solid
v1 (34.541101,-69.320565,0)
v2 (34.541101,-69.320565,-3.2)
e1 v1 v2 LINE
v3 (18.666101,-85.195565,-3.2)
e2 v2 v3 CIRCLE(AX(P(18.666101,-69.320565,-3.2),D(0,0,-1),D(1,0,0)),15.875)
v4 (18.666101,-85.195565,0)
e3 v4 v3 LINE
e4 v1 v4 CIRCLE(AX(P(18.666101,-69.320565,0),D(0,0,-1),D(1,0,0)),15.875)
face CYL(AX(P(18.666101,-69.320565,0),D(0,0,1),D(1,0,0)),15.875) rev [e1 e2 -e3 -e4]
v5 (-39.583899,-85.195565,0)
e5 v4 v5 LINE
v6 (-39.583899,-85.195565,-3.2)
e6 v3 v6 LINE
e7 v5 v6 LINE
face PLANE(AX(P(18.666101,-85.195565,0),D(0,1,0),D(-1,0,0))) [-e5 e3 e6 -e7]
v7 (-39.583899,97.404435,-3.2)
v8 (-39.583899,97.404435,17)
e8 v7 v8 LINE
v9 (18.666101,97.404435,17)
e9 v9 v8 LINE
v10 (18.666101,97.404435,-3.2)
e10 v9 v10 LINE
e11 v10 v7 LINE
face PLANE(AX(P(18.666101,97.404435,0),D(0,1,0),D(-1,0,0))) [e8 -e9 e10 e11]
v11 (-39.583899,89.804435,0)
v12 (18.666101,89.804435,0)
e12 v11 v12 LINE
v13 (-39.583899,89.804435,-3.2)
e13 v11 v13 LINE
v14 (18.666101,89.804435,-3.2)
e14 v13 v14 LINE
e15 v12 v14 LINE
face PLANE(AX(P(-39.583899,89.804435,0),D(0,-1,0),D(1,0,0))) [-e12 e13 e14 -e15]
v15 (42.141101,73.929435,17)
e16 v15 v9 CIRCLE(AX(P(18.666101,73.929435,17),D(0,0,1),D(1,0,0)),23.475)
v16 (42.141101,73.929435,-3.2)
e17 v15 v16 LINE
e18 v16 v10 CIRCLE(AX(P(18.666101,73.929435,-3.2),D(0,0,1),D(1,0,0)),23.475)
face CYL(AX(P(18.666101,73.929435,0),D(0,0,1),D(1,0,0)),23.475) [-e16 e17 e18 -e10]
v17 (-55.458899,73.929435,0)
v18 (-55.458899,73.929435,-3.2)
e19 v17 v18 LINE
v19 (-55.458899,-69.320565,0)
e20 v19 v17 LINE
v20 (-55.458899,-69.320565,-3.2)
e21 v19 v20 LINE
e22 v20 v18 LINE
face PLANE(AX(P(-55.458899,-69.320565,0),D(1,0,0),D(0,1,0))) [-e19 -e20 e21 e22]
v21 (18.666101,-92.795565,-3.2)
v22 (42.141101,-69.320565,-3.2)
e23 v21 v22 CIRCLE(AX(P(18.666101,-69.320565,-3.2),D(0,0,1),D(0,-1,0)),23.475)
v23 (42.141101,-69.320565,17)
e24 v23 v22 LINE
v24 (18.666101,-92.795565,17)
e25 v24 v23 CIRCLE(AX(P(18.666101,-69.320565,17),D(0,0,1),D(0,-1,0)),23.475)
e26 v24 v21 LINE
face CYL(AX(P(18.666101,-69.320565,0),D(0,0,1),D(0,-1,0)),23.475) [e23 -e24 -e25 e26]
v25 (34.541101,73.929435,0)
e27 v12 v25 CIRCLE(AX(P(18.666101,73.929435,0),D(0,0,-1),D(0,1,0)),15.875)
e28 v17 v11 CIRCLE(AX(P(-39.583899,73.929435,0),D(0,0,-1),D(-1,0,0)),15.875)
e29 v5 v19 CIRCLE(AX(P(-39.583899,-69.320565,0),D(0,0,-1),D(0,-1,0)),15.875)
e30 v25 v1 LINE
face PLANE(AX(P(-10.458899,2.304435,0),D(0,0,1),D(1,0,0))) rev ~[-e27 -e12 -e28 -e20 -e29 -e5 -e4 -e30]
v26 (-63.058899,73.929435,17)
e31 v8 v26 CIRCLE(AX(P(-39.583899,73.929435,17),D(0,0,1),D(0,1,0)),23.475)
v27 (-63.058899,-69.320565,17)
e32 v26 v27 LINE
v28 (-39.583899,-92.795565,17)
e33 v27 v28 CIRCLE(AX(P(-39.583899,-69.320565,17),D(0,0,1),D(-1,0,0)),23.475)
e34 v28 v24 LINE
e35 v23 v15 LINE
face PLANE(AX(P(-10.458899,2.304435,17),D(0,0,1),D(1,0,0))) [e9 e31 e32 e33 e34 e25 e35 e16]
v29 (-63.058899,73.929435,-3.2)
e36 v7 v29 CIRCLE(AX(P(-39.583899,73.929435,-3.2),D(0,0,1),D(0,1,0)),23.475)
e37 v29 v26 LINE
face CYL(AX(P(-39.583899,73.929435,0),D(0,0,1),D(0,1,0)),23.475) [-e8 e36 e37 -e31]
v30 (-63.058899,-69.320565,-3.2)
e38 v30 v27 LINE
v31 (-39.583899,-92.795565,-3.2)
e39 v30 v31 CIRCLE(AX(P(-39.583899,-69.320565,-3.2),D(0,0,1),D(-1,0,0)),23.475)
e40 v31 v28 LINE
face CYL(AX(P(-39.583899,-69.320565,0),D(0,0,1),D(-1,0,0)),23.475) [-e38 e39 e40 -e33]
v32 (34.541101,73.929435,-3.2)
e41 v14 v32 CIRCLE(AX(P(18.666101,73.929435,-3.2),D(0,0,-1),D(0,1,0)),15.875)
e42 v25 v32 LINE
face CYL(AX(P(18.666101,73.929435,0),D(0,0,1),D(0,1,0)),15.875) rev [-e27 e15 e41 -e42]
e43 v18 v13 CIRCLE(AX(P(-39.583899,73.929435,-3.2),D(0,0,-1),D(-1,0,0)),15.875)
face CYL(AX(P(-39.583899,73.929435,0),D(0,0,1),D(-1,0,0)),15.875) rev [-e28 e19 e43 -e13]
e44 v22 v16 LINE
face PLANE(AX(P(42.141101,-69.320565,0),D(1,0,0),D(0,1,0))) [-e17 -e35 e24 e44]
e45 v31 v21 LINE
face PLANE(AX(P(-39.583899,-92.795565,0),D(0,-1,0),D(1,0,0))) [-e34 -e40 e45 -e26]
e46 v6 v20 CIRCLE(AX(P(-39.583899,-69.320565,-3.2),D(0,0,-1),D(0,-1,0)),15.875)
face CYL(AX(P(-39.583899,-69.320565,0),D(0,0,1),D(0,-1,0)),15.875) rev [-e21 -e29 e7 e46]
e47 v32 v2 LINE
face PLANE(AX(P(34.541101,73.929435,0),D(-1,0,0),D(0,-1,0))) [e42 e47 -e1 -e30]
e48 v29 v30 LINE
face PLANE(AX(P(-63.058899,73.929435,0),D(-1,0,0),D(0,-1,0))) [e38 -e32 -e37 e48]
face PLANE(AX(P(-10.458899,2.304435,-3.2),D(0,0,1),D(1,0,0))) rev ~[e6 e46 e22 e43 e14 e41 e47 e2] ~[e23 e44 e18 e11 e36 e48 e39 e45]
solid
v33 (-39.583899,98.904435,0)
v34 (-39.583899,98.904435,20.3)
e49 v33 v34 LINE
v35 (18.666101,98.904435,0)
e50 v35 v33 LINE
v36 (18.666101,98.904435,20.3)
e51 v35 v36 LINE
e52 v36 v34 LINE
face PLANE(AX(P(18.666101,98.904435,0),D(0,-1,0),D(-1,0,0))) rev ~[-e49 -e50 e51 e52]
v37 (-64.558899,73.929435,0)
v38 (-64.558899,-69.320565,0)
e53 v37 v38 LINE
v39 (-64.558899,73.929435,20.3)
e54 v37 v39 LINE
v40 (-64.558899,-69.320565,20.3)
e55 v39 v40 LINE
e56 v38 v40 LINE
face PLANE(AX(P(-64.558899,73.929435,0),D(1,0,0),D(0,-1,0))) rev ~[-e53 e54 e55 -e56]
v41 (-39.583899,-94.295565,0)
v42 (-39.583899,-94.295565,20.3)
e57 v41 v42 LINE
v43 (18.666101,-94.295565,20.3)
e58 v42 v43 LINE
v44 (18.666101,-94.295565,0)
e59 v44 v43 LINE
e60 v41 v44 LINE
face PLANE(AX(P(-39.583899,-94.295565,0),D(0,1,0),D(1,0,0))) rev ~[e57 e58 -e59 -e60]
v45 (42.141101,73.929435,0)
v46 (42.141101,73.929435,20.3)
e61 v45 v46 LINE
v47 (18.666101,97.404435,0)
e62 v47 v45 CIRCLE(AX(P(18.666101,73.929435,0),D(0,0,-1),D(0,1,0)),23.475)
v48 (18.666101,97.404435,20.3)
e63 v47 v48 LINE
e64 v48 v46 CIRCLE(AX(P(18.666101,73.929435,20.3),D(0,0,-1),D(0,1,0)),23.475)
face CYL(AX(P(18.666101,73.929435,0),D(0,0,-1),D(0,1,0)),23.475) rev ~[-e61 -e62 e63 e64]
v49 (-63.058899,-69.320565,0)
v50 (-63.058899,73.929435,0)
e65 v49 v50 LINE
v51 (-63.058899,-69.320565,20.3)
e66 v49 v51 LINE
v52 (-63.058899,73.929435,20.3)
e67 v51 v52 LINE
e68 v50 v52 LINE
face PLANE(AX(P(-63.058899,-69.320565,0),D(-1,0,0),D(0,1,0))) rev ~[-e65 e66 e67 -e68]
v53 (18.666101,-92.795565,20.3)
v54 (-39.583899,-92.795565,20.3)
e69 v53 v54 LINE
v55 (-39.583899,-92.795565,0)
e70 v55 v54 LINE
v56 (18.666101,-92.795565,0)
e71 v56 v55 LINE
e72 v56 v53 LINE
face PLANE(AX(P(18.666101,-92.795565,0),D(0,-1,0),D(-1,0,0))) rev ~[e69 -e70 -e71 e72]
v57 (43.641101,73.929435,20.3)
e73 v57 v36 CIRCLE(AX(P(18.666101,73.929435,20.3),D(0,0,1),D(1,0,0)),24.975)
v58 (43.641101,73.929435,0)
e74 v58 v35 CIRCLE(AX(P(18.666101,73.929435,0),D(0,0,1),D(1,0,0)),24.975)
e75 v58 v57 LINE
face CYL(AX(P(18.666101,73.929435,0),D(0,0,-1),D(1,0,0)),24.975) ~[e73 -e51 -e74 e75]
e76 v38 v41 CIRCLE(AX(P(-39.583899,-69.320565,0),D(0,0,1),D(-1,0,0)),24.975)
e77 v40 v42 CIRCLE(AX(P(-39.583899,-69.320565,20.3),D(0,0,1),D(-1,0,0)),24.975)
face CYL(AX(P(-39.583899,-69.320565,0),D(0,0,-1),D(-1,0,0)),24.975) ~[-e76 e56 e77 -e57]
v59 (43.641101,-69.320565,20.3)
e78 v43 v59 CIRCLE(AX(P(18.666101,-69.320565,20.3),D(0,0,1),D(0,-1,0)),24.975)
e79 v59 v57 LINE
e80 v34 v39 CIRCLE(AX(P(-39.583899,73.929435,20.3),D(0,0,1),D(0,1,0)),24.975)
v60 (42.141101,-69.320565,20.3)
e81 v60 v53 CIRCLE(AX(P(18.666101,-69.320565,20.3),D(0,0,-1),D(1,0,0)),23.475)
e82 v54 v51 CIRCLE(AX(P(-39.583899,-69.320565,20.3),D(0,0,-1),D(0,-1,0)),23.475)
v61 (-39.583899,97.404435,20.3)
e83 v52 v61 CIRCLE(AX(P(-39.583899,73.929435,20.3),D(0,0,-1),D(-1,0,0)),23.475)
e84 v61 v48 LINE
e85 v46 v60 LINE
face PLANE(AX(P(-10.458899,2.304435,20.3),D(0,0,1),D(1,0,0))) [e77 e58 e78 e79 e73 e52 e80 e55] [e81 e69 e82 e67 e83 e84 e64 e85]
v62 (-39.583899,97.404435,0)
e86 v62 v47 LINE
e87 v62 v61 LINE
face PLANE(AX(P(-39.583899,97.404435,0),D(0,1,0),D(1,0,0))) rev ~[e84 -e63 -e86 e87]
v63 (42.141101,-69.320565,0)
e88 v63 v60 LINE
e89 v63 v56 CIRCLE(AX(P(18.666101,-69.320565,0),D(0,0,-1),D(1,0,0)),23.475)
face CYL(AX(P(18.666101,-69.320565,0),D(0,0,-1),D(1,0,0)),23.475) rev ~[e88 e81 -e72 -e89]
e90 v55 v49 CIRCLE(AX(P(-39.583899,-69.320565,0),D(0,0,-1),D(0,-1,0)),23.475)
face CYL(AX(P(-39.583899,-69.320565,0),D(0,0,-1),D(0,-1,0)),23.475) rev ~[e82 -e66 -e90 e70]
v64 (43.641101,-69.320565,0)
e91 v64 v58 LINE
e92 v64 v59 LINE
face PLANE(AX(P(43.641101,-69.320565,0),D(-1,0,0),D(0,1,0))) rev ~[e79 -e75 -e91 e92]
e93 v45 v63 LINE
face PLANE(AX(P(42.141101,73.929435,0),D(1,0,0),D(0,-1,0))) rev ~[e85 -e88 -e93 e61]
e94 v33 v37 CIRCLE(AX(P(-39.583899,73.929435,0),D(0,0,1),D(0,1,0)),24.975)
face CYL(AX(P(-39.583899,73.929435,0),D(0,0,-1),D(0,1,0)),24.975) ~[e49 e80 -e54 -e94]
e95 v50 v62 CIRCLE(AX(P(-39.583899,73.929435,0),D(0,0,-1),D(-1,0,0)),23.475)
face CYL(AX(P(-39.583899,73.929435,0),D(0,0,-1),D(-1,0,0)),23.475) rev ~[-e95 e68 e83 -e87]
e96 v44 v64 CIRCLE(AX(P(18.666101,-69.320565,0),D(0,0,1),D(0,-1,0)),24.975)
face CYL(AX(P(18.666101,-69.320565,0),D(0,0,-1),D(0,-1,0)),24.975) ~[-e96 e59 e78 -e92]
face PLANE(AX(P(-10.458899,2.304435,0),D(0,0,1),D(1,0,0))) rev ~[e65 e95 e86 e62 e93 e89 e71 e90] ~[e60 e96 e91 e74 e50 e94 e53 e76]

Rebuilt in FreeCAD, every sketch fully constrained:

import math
import FreeCAD as App
import Part
import Sketcher
from FreeCAD import Vector
Q = App.Units.Quantity

doc = App.newDocument("Part")
params = doc.addObject("Spreadsheet::Sheet", "Params")
for row, (alias, value) in enumerate([
    ("sketch1_width", "58.25 mm"),
    ("sketch1_height", "143.25 mm"),
    ("pad1_length", "17 mm"),
    ("sketch2_width", "58.25 mm"),
    ("sketch2_height", "143.25 mm"),
    ("pad2_length", "3.2 mm"),
    ("sketch3_width", "58.25 mm"),
    ("sketch3_height", "143.25 mm"),
    ("pad3_length", "20.3 mm"),
], start=1):
    params.set(f"A{row}", alias)
    params.set(f"B{row}", "=" + value)
    params.setAlias(f"B{row}", alias)

body = doc.addObject("PartDesign::Body", "Body")

sketch1 = body.newObject("Sketcher::SketchObject", "Sketch")
sketch1.AttachmentSupport = (doc.getObject("XY_Plane"), [""])
sketch1.MapMode = "FlatFace"
sketch1.addGeometry([
    Part.LineSegment(Vector(19, 97, 0), Vector(-40, 97, 0)),
    Part.ArcOfCircle(Part.Circle(Vector(-40, 74, 0), Vector(0, 0, 1), 23), math.radians(90), math.radians(180)),
    Part.LineSegment(Vector(-63, 74, 0), Vector(-63, -69, 0)),
    Part.ArcOfCircle(Part.Circle(Vector(-40, -69, 0), Vector(0, 0, 1), 23), math.radians(180), math.radians(270)),
    Part.LineSegment(Vector(-40, -93, 0), Vector(19, -93, 0)),
    Part.ArcOfCircle(Part.Circle(Vector(19, -69, 0), Vector(0, 0, 1), 23), math.radians(-90), math.radians(0)),
    Part.LineSegment(Vector(42, -69, 0), Vector(42, 74, 0)),
    Part.ArcOfCircle(Part.Circle(Vector(19, 74, 0), Vector(0, 0, 1), 23), math.radians(0), math.radians(90)),
], False)
sketch1.addConstraint([
    Sketcher.Constraint("Tangent", 0, 2, 1, 1),
    Sketcher.Constraint("Tangent", 1, 2, 2, 1),
    Sketcher.Constraint("Tangent", 2, 2, 3, 1),
    Sketcher.Constraint("Tangent", 3, 2, 4, 1),
    Sketcher.Constraint("Tangent", 4, 2, 5, 1),
    Sketcher.Constraint("Tangent", 5, 2, 6, 1),
    Sketcher.Constraint("Tangent", 6, 2, 7, 1),
    Sketcher.Constraint("Tangent", 7, 2, 0, 1),
    Sketcher.Constraint("Horizontal", 0),
    Sketcher.Constraint("Vertical", 2),
    Sketcher.Constraint("Horizontal", 4),
    Sketcher.Constraint("Vertical", 6),
    Sketcher.Constraint("Equal", 1, 3),
    Sketcher.Constraint("Equal", 3, 5),
    Sketcher.Constraint("Equal", 5, 7),
    Sketcher.Constraint("Radius", 1, Q("23.475 mm")),
    Sketcher.Constraint("DistanceX", 0, 2, 0, 1, Q("58.25 mm")),
    Sketcher.Constraint("DistanceY", 2, 2, 2, 1, Q("143.25 mm")),
    Sketcher.Constraint("DistanceX", 1, 3, -1, 1, Q("39.583899 mm")),
    Sketcher.Constraint("DistanceY", -1, 1, 1, 3, Q("73.929435 mm")),
])
sketch1.setExpression("Constraints[16]", "Params.sketch1_width")
sketch1.setExpression("Constraints[17]", "Params.sketch1_height")
pad1 = body.newObject("PartDesign::Pad", "Pad")
pad1.Profile = sketch1
pad1.setExpression("Length", "Params.pad1_length")

sketch2 = body.newObject("Sketcher::SketchObject", "Sketch001")
sketch2.AttachmentSupport = (doc.getObject("XY_Plane"), [""])
sketch2.MapMode = "FlatFace"
sketch2.addGeometry([
    Part.LineSegment(Vector(19, 97, 0), Vector(-40, 97, 0)),
    Part.ArcOfCircle(Part.Circle(Vector(-40, 74, 0), Vector(0, 0, 1), 23), math.radians(90), math.radians(180)),
    Part.LineSegment(Vector(-63, 74, 0), Vector(-63, -69, 0)),
    Part.ArcOfCircle(Part.Circle(Vector(-40, -69, 0), Vector(0, 0, 1), 23), math.radians(180), math.radians(270)),
    Part.LineSegment(Vector(-40, -93, 0), Vector(19, -93, 0)),
    Part.ArcOfCircle(Part.Circle(Vector(19, -69, 0), Vector(0, 0, 1), 23), math.radians(-90), math.radians(0)),
    Part.LineSegment(Vector(42, -69, 0), Vector(42, 74, 0)),
    Part.ArcOfCircle(Part.Circle(Vector(19, 74, 0), Vector(0, 0, 1), 23), math.radians(0), math.radians(90)),
    Part.LineSegment(Vector(-55, -69, 0), Vector(-55, 74, 0)),
    Part.ArcOfCircle(Part.Circle(Vector(-40, 74, 0), Vector(0, 0, 1), 16), math.radians(90), math.radians(180)),
    Part.LineSegment(Vector(-40, 90, 0), Vector(19, 90, 0)),
    Part.ArcOfCircle(Part.Circle(Vector(19, 74, 0), Vector(0, 0, 1), 16), math.radians(0), math.radians(90)),
    Part.LineSegment(Vector(35, 74, 0), Vector(35, -69, 0)),
    Part.ArcOfCircle(Part.Circle(Vector(19, -69, 0), Vector(0, 0, 1), 16), math.radians(-90), math.radians(0)),
    Part.LineSegment(Vector(19, -85, 0), Vector(-40, -85, 0)),
    Part.ArcOfCircle(Part.Circle(Vector(-40, -69, 0), Vector(0, 0, 1), 16), math.radians(180), math.radians(270)),
], False)
sketch2.addConstraint([
    Sketcher.Constraint("Tangent", 0, 2, 1, 1),
    Sketcher.Constraint("Tangent", 1, 2, 2, 1),
    Sketcher.Constraint("Tangent", 2, 2, 3, 1),
    Sketcher.Constraint("Tangent", 3, 2, 4, 1),
    Sketcher.Constraint("Tangent", 4, 2, 5, 1),
    Sketcher.Constraint("Tangent", 5, 2, 6, 1),
    Sketcher.Constraint("Tangent", 6, 2, 7, 1),
    Sketcher.Constraint("Tangent", 7, 2, 0, 1),
    Sketcher.Constraint("Tangent", 8, 2, 9, 2),
    Sketcher.Constraint("Tangent", 9, 1, 10, 1),
    Sketcher.Constraint("Tangent", 10, 2, 11, 2),
    Sketcher.Constraint("Tangent", 11, 1, 12, 1),
    Sketcher.Constraint("Tangent", 12, 2, 13, 2),
    Sketcher.Constraint("Tangent", 13, 1, 14, 1),
    Sketcher.Constraint("Tangent", 14, 2, 15, 2),
    Sketcher.Constraint("Tangent", 15, 1, 8, 1),
    Sketcher.Constraint("Horizontal", 0),
    Sketcher.Constraint("Vertical", 2),
    Sketcher.Constraint("Horizontal", 4),
    Sketcher.Constraint("Vertical", 6),
    Sketcher.Constraint("Vertical", 8),
    Sketcher.Constraint("Horizontal", 10),
    Sketcher.Constraint("Vertical", 12),
    Sketcher.Constraint("Horizontal", 14),
    Sketcher.Constraint("Coincident", 9, 3, 1, 3),
    Sketcher.Constraint("Coincident", 11, 3, 7, 3),
    Sketcher.Constraint("Coincident", 13, 3, 5, 3),
    Sketcher.Constraint("Equal", 1, 3),
    Sketcher.Constraint("Equal", 3, 5),
    Sketcher.Constraint("Equal", 5, 7),
    Sketcher.Constraint("Equal", 13, 15),
    Sketcher.Constraint("Radius", 1, Q("23.475 mm")),
    Sketcher.Constraint("Radius", 9, Q("15.875 mm")),
    Sketcher.Constraint("DistanceX", 0, 2, 0, 1, Q("58.25 mm")),
    Sketcher.Constraint("DistanceY", 2, 2, 2, 1, Q("143.25 mm")),
    Sketcher.Constraint("DistanceX", 1, 3, -1, 1, Q("39.583899 mm")),
    Sketcher.Constraint("DistanceY", -1, 1, 1, 3, Q("73.929435 mm")),
])
sketch2.setExpression("Constraints[33]", "Params.sketch2_width")
sketch2.setExpression("Constraints[34]", "Params.sketch2_height")
pad2 = body.newObject("PartDesign::Pad", "Pad001")
pad2.Profile = sketch2
pad2.setExpression("Length", "Params.pad2_length")
pad2.Reversed = True
body2 = doc.addObject("PartDesign::Body", "Body001")

sketch3 = body2.newObject("Sketcher::SketchObject", "Sketch002")
sketch3.AttachmentSupport = (doc.getObject("XY_Plane001"), [""])
sketch3.MapMode = "FlatFace"
sketch3.addGeometry([
    Part.LineSegment(Vector(19, 99, 0), Vector(-40, 99, 0)),
    Part.ArcOfCircle(Part.Circle(Vector(-40, 74, 0), Vector(0, 0, 1), 25), math.radians(90), math.radians(180)),
    Part.LineSegment(Vector(-65, 74, 0), Vector(-65, -69, 0)),
    Part.ArcOfCircle(Part.Circle(Vector(-40, -69, 0), Vector(0, 0, 1), 25), math.radians(180), math.radians(270)),
    Part.LineSegment(Vector(-40, -94, 0), Vector(19, -94, 0)),
    Part.ArcOfCircle(Part.Circle(Vector(19, -69, 0), Vector(0, 0, 1), 25), math.radians(-90), math.radians(0)),
    Part.LineSegment(Vector(44, -69, 0), Vector(44, 74, 0)),
    Part.ArcOfCircle(Part.Circle(Vector(19, 74, 0), Vector(0, 0, 1), 25), math.radians(0), math.radians(90)),
    Part.LineSegment(Vector(-63, -69, 0), Vector(-63, 74, 0)),
    Part.ArcOfCircle(Part.Circle(Vector(-40, 74, 0), Vector(0, 0, 1), 23), math.radians(90), math.radians(180)),
    Part.LineSegment(Vector(-40, 97, 0), Vector(19, 97, 0)),
    Part.ArcOfCircle(Part.Circle(Vector(19, 74, 0), Vector(0, 0, 1), 23), math.radians(0), math.radians(90)),
    Part.LineSegment(Vector(42, 74, 0), Vector(42, -69, 0)),
    Part.ArcOfCircle(Part.Circle(Vector(19, -69, 0), Vector(0, 0, 1), 23), math.radians(-90), math.radians(0)),
    Part.LineSegment(Vector(19, -93, 0), Vector(-40, -93, 0)),
    Part.ArcOfCircle(Part.Circle(Vector(-40, -69, 0), Vector(0, 0, 1), 23), math.radians(180), math.radians(270)),
], False)
sketch3.addConstraint([
    Sketcher.Constraint("Tangent", 0, 2, 1, 1),
    Sketcher.Constraint("Tangent", 1, 2, 2, 1),
    Sketcher.Constraint("Tangent", 2, 2, 3, 1),
    Sketcher.Constraint("Tangent", 3, 2, 4, 1),
    Sketcher.Constraint("Tangent", 4, 2, 5, 1),
    Sketcher.Constraint("Tangent", 5, 2, 6, 1),
    Sketcher.Constraint("Tangent", 6, 2, 7, 1),
    Sketcher.Constraint("Tangent", 7, 2, 0, 1),
    Sketcher.Constraint("Tangent", 8, 2, 9, 2),
    Sketcher.Constraint("Tangent", 9, 1, 10, 1),
    Sketcher.Constraint("Tangent", 10, 2, 11, 2),
    Sketcher.Constraint("Tangent", 11, 1, 12, 1),
    Sketcher.Constraint("Tangent", 12, 2, 13, 2),
    Sketcher.Constraint("Tangent", 13, 1, 14, 1),
    Sketcher.Constraint("Tangent", 14, 2, 15, 2),
    Sketcher.Constraint("Tangent", 15, 1, 8, 1),
    Sketcher.Constraint("Horizontal", 0),
    Sketcher.Constraint("Vertical", 2),
    Sketcher.Constraint("Horizontal", 4),
    Sketcher.Constraint("Vertical", 6),
    Sketcher.Constraint("Vertical", 8),
    Sketcher.Constraint("Horizontal", 10),
    Sketcher.Constraint("Vertical", 12),
    Sketcher.Constraint("Horizontal", 14),
    Sketcher.Constraint("Coincident", 9, 3, 1, 3),
    Sketcher.Constraint("Coincident", 11, 3, 7, 3),
    Sketcher.Constraint("Coincident", 13, 3, 5, 3),
    Sketcher.Constraint("Equal", 1, 3),
    Sketcher.Constraint("Equal", 3, 5),
    Sketcher.Constraint("Equal", 5, 7),
    Sketcher.Constraint("Equal", 13, 15),
    Sketcher.Constraint("Radius", 1, Q("24.975 mm")),
    Sketcher.Constraint("Radius", 9, Q("23.475 mm")),
    Sketcher.Constraint("DistanceX", 0, 2, 0, 1, Q("58.25 mm")),
    Sketcher.Constraint("DistanceY", 2, 2, 2, 1, Q("143.25 mm")),
    Sketcher.Constraint("DistanceX", 1, 3, -1, 1, Q("39.583899 mm")),
    Sketcher.Constraint("DistanceY", -1, 1, 1, 3, Q("73.929435 mm")),
])
sketch3.setExpression("Constraints[33]", "Params.sketch3_width")
sketch3.setExpression("Constraints[34]", "Params.sketch3_height")
pad3 = body2.newObject("PartDesign::Pad", "Pad002")
pad3.Profile = sketch3
pad3.setExpression("Length", "Params.pad3_length")

doc.recompute()
